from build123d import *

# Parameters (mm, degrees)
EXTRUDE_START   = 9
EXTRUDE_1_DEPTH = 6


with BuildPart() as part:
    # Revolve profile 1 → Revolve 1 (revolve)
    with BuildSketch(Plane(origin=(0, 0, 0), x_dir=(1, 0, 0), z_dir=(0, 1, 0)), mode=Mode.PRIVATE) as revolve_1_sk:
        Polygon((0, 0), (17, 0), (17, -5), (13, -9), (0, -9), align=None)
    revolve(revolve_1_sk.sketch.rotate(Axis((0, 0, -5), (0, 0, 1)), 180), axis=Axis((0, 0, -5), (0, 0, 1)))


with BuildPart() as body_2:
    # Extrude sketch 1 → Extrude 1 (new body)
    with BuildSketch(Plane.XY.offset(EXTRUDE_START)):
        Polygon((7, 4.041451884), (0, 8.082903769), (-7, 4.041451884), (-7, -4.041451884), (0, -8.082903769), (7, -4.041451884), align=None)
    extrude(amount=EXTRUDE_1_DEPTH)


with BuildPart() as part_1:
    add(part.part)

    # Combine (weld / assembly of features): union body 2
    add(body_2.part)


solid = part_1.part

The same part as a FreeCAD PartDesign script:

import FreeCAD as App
import Part
import Sketcher
Q = App.Units.Quantity

doc = App.newDocument("Part")
body = doc.addObject("PartDesign::Body", "Body")

sketch1 = body.newObject("Sketcher::SketchObject", "Sketch")
sketch1.AttachmentSupport = (doc.getObject("XZ_Plane"), [""])
sketch1.MapMode = "FlatFace"
sketch1.addGeometry(Part.LineSegment(App.Vector(17, 0, 0), App.Vector(0, 0, 0)), False)
sketch1.addGeometry(Part.LineSegment(App.Vector(0, 0, 0), App.Vector(0, 9, 0)), False)
sketch1.addGeometry(Part.LineSegment(App.Vector(0, 9, 0), App.Vector(13, 9, 0)), False)
sketch1.addGeometry(Part.LineSegment(App.Vector(13, 9, 0), App.Vector(17, 5, 0)), False)
sketch1.addGeometry(Part.LineSegment(App.Vector(17, 5, 0), App.Vector(17, 0, 0)), False)
sketch1.addConstraint(Sketcher.Constraint("Coincident", 0, 2, 1, 1))
sketch1.addConstraint(Sketcher.Constraint("Coincident", 1, 2, 2, 1))
sketch1.addConstraint(Sketcher.Constraint("Coincident", 2, 2, 3, 1))
sketch1.addConstraint(Sketcher.Constraint("Coincident", 3, 2, 4, 1))
sketch1.addConstraint(Sketcher.Constraint("Coincident", 4, 2, 0, 1))
sketch1.addConstraint(Sketcher.Constraint("Horizontal", 0))
sketch1.addConstraint(Sketcher.Constraint("Vertical", 1))
sketch1.addConstraint(Sketcher.Constraint("Horizontal", 2))
sketch1.addConstraint(Sketcher.Constraint("Vertical", 4))
sketch1.addConstraint(Sketcher.Constraint("Coincident", 0, 2, -1, 1))
sketch1.addConstraint(Sketcher.Constraint("DistanceX", 0, 2, 0, 1, Q("17 mm")))
sketch1.addConstraint(Sketcher.Constraint("DistanceX", 2, 1, 2, 2, Q("13 mm")))
sketch1.addConstraint(Sketcher.Constraint("DistanceY", 1, 1, 1, 2, Q("9 mm")))
sketch1.addConstraint(Sketcher.Constraint("DistanceY", 4, 2, 4, 1, Q("5 mm")))
revolution = body.newObject("PartDesign::Revolution", "Revolution")
revolution.Profile = sketch1
revolution.ReferenceAxis = (sketch1, ["V_Axis"])
revolution.Angle = 360
body2 = doc.addObject("PartDesign::Body", "Body001")

sketch2 = body2.newObject("Sketcher::SketchObject", "Sketch001")
sketch2.AttachmentSupport = (doc.getObject("XY_Plane001"), [""])
sketch2.MapMode = "FlatFace"
sketch2.AttachmentOffset = App.Placement(App.Vector(0, 0, 9), App.Rotation())
sketch2.addGeometry(Part.LineSegment(App.Vector(7, 4.041452, 0), App.Vector(0, 8.082904, 0)), False)
sketch2.addGeometry(Part.LineSegment(App.Vector(0, 8.082904, 0), App.Vector(-7, 4.041452, 0)), False)
sketch2.addGeometry(Part.LineSegment(App.Vector(-7, 4.041452, 0), App.Vector(-7, -4.041452, 0)), False)
sketch2.addGeometry(Part.LineSegment(App.Vector(-7, -4.041452, 0), App.Vector(0, -8.082904, 0)), False)
sketch2.addGeometry(Part.LineSegment(App.Vector(0, -8.082904, 0), App.Vector(7, -4.041452, 0)), False)
sketch2.addGeometry(Part.LineSegment(App.Vector(7, -4.041452, 0), App.Vector(7, 4.041452, 0)), False)
sketch2.addConstraint(Sketcher.Constraint("Coincident", 0, 2, 1, 1))
sketch2.addConstraint(Sketcher.Constraint("Coincident", 1, 2, 2, 1))
sketch2.addConstraint(Sketcher.Constraint("Coincident", 2, 2, 3, 1))
sketch2.addConstraint(Sketcher.Constraint("Coincident", 3, 2, 4, 1))
sketch2.addConstraint(Sketcher.Constraint("Coincident", 4, 2, 5, 1))
sketch2.addConstraint(Sketcher.Constraint("Coincident", 5, 2, 0, 1))
sketch2.addConstraint(Sketcher.Constraint("Vertical", 2))
sketch2.addConstraint(Sketcher.Constraint("Vertical", 5))
sketch2.addConstraint(Sketcher.Constraint("Symmetric", 0, 2, 3, 2, -1, 1))
sketch2.addConstraint(Sketcher.Constraint("Symmetric", 1, 2, 4, 2, -1, 1))
sketch2.addConstraint(Sketcher.Constraint("PointOnObject", 0, 2, -2))
sketch2.addConstraint(Sketcher.Constraint("Parallel", 0, 3))
sketch2.addConstraint(Sketcher.Constraint("Horizontal", 2, 2, 4, 2))
sketch2.addConstraint(Sketcher.Constraint("Angle", 0, Q("150 deg")))
sketch2.addConstraint(Sketcher.Constraint("DistanceX", 1, 2, -1, 1, Q("7 mm")))
sketch2.addConstraint(Sketcher.Constraint("DistanceY", 2, 2, 2, 1, Q("8.082904 mm")))
pad1 = body2.newObject("PartDesign::Pad", "Pad")
pad1.Profile = sketch2
pad1.Length = 6
doc.recompute()

boolean = body.newObject("PartDesign::Boolean", "Boolean")
boolean.Type = "Fuse"
boolean.addObjects([body2])

doc.recompute()
